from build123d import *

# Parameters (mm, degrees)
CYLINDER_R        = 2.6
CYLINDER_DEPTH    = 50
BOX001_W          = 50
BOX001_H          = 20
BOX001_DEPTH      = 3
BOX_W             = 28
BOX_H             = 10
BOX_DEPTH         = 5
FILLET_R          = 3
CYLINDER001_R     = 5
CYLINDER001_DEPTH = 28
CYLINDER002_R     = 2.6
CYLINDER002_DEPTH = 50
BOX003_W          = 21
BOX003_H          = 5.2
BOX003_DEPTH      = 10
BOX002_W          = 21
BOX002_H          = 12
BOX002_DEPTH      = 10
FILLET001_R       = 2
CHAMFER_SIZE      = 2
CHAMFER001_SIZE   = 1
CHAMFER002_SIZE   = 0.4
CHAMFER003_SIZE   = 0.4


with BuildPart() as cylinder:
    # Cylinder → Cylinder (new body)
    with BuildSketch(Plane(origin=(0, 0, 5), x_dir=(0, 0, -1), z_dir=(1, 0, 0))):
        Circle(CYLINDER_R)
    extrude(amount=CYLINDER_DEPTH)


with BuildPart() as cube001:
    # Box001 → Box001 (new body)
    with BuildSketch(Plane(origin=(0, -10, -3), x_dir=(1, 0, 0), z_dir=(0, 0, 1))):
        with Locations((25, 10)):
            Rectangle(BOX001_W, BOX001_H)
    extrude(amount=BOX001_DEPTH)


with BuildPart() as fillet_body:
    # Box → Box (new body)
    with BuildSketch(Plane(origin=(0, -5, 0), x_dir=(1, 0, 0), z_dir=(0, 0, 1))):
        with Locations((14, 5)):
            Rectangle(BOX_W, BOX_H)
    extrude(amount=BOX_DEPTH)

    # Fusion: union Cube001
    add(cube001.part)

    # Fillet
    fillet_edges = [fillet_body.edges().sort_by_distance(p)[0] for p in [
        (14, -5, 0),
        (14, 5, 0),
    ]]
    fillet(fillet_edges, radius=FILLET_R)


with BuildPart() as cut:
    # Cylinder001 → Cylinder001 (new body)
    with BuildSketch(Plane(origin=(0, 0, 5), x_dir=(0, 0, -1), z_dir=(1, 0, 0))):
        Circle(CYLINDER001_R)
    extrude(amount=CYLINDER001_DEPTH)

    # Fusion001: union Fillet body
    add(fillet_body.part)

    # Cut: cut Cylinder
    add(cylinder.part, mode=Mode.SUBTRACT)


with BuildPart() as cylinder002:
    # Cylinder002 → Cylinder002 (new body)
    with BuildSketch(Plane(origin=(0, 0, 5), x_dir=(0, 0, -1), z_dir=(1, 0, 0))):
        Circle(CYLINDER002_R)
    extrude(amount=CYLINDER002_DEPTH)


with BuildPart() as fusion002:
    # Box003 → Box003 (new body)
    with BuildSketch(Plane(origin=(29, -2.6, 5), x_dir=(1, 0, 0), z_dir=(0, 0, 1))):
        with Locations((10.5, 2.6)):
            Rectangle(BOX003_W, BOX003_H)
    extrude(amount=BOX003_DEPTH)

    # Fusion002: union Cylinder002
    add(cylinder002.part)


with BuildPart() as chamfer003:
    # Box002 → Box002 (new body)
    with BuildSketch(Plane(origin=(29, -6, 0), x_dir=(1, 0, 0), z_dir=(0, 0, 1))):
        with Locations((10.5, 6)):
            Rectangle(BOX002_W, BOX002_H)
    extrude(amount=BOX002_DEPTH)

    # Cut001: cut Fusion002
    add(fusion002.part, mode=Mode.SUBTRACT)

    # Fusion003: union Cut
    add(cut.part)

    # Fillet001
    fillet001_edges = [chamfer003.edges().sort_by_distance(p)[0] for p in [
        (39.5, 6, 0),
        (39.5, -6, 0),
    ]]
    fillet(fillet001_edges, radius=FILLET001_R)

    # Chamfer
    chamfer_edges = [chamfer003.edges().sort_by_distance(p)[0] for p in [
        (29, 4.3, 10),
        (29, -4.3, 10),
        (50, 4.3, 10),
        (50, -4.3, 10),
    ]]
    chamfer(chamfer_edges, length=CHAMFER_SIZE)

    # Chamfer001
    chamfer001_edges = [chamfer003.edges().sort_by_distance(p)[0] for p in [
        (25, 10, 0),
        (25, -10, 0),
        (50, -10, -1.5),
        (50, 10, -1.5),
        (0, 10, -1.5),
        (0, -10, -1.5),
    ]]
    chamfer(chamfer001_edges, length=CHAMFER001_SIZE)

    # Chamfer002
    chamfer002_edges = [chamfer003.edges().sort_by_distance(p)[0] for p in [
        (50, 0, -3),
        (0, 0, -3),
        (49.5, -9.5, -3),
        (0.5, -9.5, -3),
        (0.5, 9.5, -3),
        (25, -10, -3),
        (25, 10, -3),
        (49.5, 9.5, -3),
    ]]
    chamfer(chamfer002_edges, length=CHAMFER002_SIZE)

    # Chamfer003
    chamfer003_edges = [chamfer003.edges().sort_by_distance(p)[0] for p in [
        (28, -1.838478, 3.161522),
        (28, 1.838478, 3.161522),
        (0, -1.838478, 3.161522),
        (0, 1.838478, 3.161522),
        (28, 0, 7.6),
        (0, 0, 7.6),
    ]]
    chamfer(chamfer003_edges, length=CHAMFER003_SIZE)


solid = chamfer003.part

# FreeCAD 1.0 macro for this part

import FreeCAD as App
import Part
import Sketcher
from FreeCAD import Vector
Q = App.Units.Quantity


def edges_at(feature, points):
    """Names of the edges that pass closest to the given points."""
    edges = feature.Shape.Edges
    near = lambda p: min(range(len(edges)), key=lambda i: edges[i].distToShape(Part.Vertex(*p))[0])
    return sorted({f"Edge{near(p) + 1}" for p in points})


def add_polygon(sketch, points):
    """Adds a closed chain of lines whose ends are joined by coincident constraints."""
    first, n = sketch.GeometryCount, len(points)
    for a, b in zip(points, points[1:] + points[:1]):
        sketch.addGeometry(Part.LineSegment(App.Vector(*a, 0), App.Vector(*b, 0)), False)
    for i in range(n):
        sketch.addConstraint(Sketcher.Constraint("Coincident", first + i, 2, first + (i + 1) % n, 1))

doc = App.newDocument("Part")
body = doc.addObject("PartDesign::Body", "Body")

sketch1 = body.newObject("Sketcher::SketchObject", "Sketch")
sketch1.AttachmentSupport = (doc.getObject("YZ_Plane"), [""])
sketch1.MapMode = "FlatFace"
sketch1.addGeometry(Part.Circle(Vector(0, 5, 0), Vector(0, 0, 1), 2.6), False)
sketch1.addConstraint(Sketcher.Constraint("PointOnObject", 0, 3, -2))
sketch1.addConstraint(Sketcher.Constraint("Diameter", 0, Q("5.2 mm")))
sketch1.addConstraint(Sketcher.Constraint("DistanceY", -1, 1, 0, 3, Q("5 mm")))
pad1 = body.newObject("PartDesign::Pad", "Pad")
pad1.Profile = sketch1
pad1.Length = 50
body2 = doc.addObject("PartDesign::Body", "Body001")

sketch2 = body2.newObject("Sketcher::SketchObject", "Sketch001")
sketch2.AttachmentSupport = (doc.getObject("XY_Plane001"), [""])
sketch2.MapMode = "FlatFace"
sketch2.AttachmentOffset = App.Placement(Vector(0, 0, -3), App.Rotation())
add_polygon(sketch2, [(0, 10), (0, -10), (50, -10), (50, 10)])
sketch2.addConstraint(Sketcher.Constraint("Vertical", 0))
sketch2.addConstraint(Sketcher.Constraint("Horizontal", 1))
sketch2.addConstraint(Sketcher.Constraint("Vertical", 2))
sketch2.addConstraint(Sketcher.Constraint("Horizontal", 3))
sketch2.addConstraint(Sketcher.Constraint("Symmetric", 0, 2, 3, 2, -1, 1))
sketch2.addConstraint(Sketcher.Constraint("DistanceX", 1, 1, 1, 2, Q("50 mm")))
sketch2.addConstraint(Sketcher.Constraint("DistanceY", 0, 2, 0, 1, Q("20 mm")))
pad2 = body2.newObject("PartDesign::Pad", "Pad001")
pad2.Profile = sketch2
pad2.Length = 3
body3 = doc.addObject("PartDesign::Body", "Body002")

sketch3 = body3.newObject("Sketcher::SketchObject", "Sketch002")
sketch3.AttachmentSupport = (doc.getObject("XY_Plane002"), [""])
sketch3.MapMode = "FlatFace"
add_polygon(sketch3, [(0, 5), (0, -5), (28, -5), (28, 5)])
sketch3.addConstraint(Sketcher.Constraint("Vertical", 0))
sketch3.addConstraint(Sketcher.Constraint("Horizontal", 1))
sketch3.addConstraint(Sketcher.Constraint("Vertical", 2))
sketch3.addConstraint(Sketcher.Constraint("Horizontal", 3))
sketch3.addConstraint(Sketcher.Constraint("Symmetric", 0, 2, 3, 2, -1, 1))
sketch3.addConstraint(Sketcher.Constraint("DistanceX", 1, 1, 1, 2, Q("28 mm")))
sketch3.addConstraint(Sketcher.Constraint("DistanceY", 0, 2, 0, 1, Q("10 mm")))
pad3 = body3.newObject("PartDesign::Pad", "Pad002")
pad3.Profile = sketch3
pad3.Length = 5
doc.recompute()

boolean = body3.newObject("PartDesign::Boolean", "Boolean")
boolean.Type = "Fuse"
boolean.addObjects([body2])
doc.recompute()

fillet = body3.newObject("PartDesign::Fillet", "Fillet")
fillet.Base = (boolean, edges_at(boolean, [(14, -5, 0), (14, 5, 0)]))
fillet.Radius = 3
body4 = doc.addObject("PartDesign::Body", "Body003")

sketch4 = body4.newObject("Sketcher::SketchObject", "Sketch003")
sketch4.AttachmentSupport = (doc.getObject("YZ_Plane003"), [""])
sketch4.MapMode = "FlatFace"
sketch4.addGeometry(Part.Circle(Vector(0, 5, 0), Vector(0, 0, 1), 5), False)
sketch4.addConstraint(Sketcher.Constraint("PointOnObject", 0, 3, -2))
sketch4.addConstraint(Sketcher.Constraint("Diameter", 0, Q("10 mm")))
sketch4.addConstraint(Sketcher.Constraint("DistanceY", -1, 1, 0, 3, Q("5 mm")))
pad4 = body4.newObject("PartDesign::Pad", "Pad003")
pad4.Profile = sketch4
pad4.Length = 28
doc.recompute()

boolean2 = body4.newObject("PartDesign::Boolean", "Boolean001")
boolean2.Type = "Fuse"
boolean2.addObjects([body3])
doc.recompute()

boolean3 = body4.newObject("PartDesign::Boolean", "Boolean002")
boolean3.Type = "Cut"
boolean3.addObjects([body])
body5 = doc.addObject("PartDesign::Body", "Body004")

sketch5 = body5.newObject("Sketcher::SketchObject", "Sketch004")
sketch5.AttachmentSupport = (doc.getObject("YZ_Plane004"), [""])
sketch5.MapMode = "FlatFace"
sketch5.addGeometry(Part.Circle(Vector(0, 5, 0), Vector(0, 0, 1), 2.6), False)
sketch5.addConstraint(Sketcher.Constraint("PointOnObject", 0, 3, -2))
sketch5.addConstraint(Sketcher.Constraint("Diameter", 0, Q("5.2 mm")))
sketch5.addConstraint(Sketcher.Constraint("DistanceY", -1, 1, 0, 3, Q("5 mm")))
pad5 = body5.newObject("PartDesign::Pad", "Pad004")
pad5.Profile = sketch5
pad5.Length = 50
body6 = doc.addObject("PartDesign::Body", "Body005")

sketch6 = body6.newObject("Sketcher::SketchObject", "Sketch005")
sketch6.AttachmentSupport = (doc.getObject("XY_Plane005"), [""])
sketch6.MapMode = "FlatFace"
sketch6.AttachmentOffset = App.Placement(Vector(0, 0, 5), App.Rotation())
add_polygon(sketch6, [(29, 3), (29, -3), (50, -3), (50, 3)])
sketch6.addConstraint(Sketcher.Constraint("Vertical", 0))
sketch6.addConstraint(Sketcher.Constraint("Horizontal", 1))
sketch6.addConstraint(Sketcher.Constraint("Vertical", 2))
sketch6.addConstraint(Sketcher.Constraint("Horizontal", 3))
sketch6.addConstraint(Sketcher.Constraint("DistanceX", 1, 1, 1, 2, Q("21 mm")))
sketch6.addConstraint(Sketcher.Constraint("DistanceY", 0, 2, 0, 1, Q("5.2 mm")))
sketch6.addConstraint(Sketcher.Constraint("DistanceX", -1, 1, 0, 2, Q("29 mm")))
sketch6.addConstraint(Sketcher.Constraint("DistanceY", 0, 2, -1, 1, Q("2.6 mm")))
pad6 = body6.newObject("PartDesign::Pad", "Pad005")
pad6.Profile = sketch6
pad6.Length = 10
doc.recompute()

boolean4 = body6.newObject("PartDesign::Boolean", "Boolean003")
boolean4.Type = "Fuse"
boolean4.addObjects([body5])
body7 = doc.addObject("PartDesign::Body", "Body006")

sketch7 = body7.newObject("Sketcher::SketchObject", "Sketch006")
sketch7.AttachmentSupport = (doc.getObject("XY_Plane006"), [""])
sketch7.MapMode = "FlatFace"
add_polygon(sketch7, [(29, 6), (29, -6), (50, -6), (50, 6)])
sketch7.addConstraint(Sketcher.Constraint("Vertical", 0))
sketch7.addConstraint(Sketcher.Constraint("Horizontal", 1))
sketch7.addConstraint(Sketcher.Constraint("Vertical", 2))
sketch7.addConstraint(Sketcher.Constraint("Horizontal", 3))
sketch7.addConstraint(Sketcher.Constraint("DistanceX", 1, 1, 1, 2, Q("21 mm")))
sketch7.addConstraint(Sketcher.Constraint("DistanceY", 0, 2, 0, 1, Q("12 mm")))
sketch7.addConstraint(Sketcher.Constraint("DistanceX", -1, 1, 0, 2, Q("29 mm")))
sketch7.addConstraint(Sketcher.Constraint("DistanceY", 0, 2, -1, 1, Q("6 mm")))
pad7 = body7.newObject("PartDesign::Pad", "Pad006")
pad7.Profile = sketch7
pad7.Length = 10
doc.recompute()

boolean5 = body7.newObject("PartDesign::Boolean", "Boolean004")
boolean5.Type = "Cut"
boolean5.addObjects([body6])
doc.recompute()

boolean6 = body7.newObject("PartDesign::Boolean", "Boolean005")
boolean6.Type = "Fuse"
boolean6.addObjects([body4])
doc.recompute()

fillet2 = body7.newObject("PartDesign::Fillet", "Fillet001")
fillet2.Base = (boolean6, edges_at(boolean6, [(39.5, 6, 0), (39.5, -6, 0)]))
fillet2.Radius = 2
doc.recompute()

chamfer = body7.newObject("PartDesign::Chamfer", "Chamfer")
chamfer.Base = (fillet2, edges_at(fillet2, [
    (29, 4.3, 10),
    (29, -4.3, 10),
    (50, 4.3, 10),
    (50, -4.3, 10),
]))
chamfer.Size = 2
doc.recompute()

chamfer2 = body7.newObject("PartDesign::Chamfer", "Chamfer001")
chamfer2.Base = (chamfer, edges_at(chamfer, [
    (25, 10, 0),
    (25, -10, 0),
    (50, -10, -1.5),
    (50, 10, -1.5),
    (0, 10, -1.5),
    (0, -10, -1.5),
]))
chamfer2.Size = 1
doc.recompute()

chamfer3 = body7.newObject("PartDesign::Chamfer", "Chamfer002")
chamfer3.Base = (chamfer2, edges_at(chamfer2, [
    (50, 0, -3),
    (0, 0, -3),
    (49.5, -9.5, -3),
    (0.5, -9.5, -3),
    (0.5, 9.5, -3),
    (25, -10, -3),
    (25, 10, -3),
    (49.5, 9.5, -3),
]))
chamfer3.Size = 0.4
doc.recompute()

chamfer4 = body7.newObject("PartDesign::Chamfer", "Chamfer003")
chamfer4.Base = (chamfer3, edges_at(chamfer3, [
    (28, 0, 7.6),
    (28, 0, 7.6),
    (0, 0, 7.6),
    (0, 0, 7.6),
    (28, 0, 7.6),
    (0, 0, 7.6),
]))
chamfer4.Size = 0.4

doc.recompute()
